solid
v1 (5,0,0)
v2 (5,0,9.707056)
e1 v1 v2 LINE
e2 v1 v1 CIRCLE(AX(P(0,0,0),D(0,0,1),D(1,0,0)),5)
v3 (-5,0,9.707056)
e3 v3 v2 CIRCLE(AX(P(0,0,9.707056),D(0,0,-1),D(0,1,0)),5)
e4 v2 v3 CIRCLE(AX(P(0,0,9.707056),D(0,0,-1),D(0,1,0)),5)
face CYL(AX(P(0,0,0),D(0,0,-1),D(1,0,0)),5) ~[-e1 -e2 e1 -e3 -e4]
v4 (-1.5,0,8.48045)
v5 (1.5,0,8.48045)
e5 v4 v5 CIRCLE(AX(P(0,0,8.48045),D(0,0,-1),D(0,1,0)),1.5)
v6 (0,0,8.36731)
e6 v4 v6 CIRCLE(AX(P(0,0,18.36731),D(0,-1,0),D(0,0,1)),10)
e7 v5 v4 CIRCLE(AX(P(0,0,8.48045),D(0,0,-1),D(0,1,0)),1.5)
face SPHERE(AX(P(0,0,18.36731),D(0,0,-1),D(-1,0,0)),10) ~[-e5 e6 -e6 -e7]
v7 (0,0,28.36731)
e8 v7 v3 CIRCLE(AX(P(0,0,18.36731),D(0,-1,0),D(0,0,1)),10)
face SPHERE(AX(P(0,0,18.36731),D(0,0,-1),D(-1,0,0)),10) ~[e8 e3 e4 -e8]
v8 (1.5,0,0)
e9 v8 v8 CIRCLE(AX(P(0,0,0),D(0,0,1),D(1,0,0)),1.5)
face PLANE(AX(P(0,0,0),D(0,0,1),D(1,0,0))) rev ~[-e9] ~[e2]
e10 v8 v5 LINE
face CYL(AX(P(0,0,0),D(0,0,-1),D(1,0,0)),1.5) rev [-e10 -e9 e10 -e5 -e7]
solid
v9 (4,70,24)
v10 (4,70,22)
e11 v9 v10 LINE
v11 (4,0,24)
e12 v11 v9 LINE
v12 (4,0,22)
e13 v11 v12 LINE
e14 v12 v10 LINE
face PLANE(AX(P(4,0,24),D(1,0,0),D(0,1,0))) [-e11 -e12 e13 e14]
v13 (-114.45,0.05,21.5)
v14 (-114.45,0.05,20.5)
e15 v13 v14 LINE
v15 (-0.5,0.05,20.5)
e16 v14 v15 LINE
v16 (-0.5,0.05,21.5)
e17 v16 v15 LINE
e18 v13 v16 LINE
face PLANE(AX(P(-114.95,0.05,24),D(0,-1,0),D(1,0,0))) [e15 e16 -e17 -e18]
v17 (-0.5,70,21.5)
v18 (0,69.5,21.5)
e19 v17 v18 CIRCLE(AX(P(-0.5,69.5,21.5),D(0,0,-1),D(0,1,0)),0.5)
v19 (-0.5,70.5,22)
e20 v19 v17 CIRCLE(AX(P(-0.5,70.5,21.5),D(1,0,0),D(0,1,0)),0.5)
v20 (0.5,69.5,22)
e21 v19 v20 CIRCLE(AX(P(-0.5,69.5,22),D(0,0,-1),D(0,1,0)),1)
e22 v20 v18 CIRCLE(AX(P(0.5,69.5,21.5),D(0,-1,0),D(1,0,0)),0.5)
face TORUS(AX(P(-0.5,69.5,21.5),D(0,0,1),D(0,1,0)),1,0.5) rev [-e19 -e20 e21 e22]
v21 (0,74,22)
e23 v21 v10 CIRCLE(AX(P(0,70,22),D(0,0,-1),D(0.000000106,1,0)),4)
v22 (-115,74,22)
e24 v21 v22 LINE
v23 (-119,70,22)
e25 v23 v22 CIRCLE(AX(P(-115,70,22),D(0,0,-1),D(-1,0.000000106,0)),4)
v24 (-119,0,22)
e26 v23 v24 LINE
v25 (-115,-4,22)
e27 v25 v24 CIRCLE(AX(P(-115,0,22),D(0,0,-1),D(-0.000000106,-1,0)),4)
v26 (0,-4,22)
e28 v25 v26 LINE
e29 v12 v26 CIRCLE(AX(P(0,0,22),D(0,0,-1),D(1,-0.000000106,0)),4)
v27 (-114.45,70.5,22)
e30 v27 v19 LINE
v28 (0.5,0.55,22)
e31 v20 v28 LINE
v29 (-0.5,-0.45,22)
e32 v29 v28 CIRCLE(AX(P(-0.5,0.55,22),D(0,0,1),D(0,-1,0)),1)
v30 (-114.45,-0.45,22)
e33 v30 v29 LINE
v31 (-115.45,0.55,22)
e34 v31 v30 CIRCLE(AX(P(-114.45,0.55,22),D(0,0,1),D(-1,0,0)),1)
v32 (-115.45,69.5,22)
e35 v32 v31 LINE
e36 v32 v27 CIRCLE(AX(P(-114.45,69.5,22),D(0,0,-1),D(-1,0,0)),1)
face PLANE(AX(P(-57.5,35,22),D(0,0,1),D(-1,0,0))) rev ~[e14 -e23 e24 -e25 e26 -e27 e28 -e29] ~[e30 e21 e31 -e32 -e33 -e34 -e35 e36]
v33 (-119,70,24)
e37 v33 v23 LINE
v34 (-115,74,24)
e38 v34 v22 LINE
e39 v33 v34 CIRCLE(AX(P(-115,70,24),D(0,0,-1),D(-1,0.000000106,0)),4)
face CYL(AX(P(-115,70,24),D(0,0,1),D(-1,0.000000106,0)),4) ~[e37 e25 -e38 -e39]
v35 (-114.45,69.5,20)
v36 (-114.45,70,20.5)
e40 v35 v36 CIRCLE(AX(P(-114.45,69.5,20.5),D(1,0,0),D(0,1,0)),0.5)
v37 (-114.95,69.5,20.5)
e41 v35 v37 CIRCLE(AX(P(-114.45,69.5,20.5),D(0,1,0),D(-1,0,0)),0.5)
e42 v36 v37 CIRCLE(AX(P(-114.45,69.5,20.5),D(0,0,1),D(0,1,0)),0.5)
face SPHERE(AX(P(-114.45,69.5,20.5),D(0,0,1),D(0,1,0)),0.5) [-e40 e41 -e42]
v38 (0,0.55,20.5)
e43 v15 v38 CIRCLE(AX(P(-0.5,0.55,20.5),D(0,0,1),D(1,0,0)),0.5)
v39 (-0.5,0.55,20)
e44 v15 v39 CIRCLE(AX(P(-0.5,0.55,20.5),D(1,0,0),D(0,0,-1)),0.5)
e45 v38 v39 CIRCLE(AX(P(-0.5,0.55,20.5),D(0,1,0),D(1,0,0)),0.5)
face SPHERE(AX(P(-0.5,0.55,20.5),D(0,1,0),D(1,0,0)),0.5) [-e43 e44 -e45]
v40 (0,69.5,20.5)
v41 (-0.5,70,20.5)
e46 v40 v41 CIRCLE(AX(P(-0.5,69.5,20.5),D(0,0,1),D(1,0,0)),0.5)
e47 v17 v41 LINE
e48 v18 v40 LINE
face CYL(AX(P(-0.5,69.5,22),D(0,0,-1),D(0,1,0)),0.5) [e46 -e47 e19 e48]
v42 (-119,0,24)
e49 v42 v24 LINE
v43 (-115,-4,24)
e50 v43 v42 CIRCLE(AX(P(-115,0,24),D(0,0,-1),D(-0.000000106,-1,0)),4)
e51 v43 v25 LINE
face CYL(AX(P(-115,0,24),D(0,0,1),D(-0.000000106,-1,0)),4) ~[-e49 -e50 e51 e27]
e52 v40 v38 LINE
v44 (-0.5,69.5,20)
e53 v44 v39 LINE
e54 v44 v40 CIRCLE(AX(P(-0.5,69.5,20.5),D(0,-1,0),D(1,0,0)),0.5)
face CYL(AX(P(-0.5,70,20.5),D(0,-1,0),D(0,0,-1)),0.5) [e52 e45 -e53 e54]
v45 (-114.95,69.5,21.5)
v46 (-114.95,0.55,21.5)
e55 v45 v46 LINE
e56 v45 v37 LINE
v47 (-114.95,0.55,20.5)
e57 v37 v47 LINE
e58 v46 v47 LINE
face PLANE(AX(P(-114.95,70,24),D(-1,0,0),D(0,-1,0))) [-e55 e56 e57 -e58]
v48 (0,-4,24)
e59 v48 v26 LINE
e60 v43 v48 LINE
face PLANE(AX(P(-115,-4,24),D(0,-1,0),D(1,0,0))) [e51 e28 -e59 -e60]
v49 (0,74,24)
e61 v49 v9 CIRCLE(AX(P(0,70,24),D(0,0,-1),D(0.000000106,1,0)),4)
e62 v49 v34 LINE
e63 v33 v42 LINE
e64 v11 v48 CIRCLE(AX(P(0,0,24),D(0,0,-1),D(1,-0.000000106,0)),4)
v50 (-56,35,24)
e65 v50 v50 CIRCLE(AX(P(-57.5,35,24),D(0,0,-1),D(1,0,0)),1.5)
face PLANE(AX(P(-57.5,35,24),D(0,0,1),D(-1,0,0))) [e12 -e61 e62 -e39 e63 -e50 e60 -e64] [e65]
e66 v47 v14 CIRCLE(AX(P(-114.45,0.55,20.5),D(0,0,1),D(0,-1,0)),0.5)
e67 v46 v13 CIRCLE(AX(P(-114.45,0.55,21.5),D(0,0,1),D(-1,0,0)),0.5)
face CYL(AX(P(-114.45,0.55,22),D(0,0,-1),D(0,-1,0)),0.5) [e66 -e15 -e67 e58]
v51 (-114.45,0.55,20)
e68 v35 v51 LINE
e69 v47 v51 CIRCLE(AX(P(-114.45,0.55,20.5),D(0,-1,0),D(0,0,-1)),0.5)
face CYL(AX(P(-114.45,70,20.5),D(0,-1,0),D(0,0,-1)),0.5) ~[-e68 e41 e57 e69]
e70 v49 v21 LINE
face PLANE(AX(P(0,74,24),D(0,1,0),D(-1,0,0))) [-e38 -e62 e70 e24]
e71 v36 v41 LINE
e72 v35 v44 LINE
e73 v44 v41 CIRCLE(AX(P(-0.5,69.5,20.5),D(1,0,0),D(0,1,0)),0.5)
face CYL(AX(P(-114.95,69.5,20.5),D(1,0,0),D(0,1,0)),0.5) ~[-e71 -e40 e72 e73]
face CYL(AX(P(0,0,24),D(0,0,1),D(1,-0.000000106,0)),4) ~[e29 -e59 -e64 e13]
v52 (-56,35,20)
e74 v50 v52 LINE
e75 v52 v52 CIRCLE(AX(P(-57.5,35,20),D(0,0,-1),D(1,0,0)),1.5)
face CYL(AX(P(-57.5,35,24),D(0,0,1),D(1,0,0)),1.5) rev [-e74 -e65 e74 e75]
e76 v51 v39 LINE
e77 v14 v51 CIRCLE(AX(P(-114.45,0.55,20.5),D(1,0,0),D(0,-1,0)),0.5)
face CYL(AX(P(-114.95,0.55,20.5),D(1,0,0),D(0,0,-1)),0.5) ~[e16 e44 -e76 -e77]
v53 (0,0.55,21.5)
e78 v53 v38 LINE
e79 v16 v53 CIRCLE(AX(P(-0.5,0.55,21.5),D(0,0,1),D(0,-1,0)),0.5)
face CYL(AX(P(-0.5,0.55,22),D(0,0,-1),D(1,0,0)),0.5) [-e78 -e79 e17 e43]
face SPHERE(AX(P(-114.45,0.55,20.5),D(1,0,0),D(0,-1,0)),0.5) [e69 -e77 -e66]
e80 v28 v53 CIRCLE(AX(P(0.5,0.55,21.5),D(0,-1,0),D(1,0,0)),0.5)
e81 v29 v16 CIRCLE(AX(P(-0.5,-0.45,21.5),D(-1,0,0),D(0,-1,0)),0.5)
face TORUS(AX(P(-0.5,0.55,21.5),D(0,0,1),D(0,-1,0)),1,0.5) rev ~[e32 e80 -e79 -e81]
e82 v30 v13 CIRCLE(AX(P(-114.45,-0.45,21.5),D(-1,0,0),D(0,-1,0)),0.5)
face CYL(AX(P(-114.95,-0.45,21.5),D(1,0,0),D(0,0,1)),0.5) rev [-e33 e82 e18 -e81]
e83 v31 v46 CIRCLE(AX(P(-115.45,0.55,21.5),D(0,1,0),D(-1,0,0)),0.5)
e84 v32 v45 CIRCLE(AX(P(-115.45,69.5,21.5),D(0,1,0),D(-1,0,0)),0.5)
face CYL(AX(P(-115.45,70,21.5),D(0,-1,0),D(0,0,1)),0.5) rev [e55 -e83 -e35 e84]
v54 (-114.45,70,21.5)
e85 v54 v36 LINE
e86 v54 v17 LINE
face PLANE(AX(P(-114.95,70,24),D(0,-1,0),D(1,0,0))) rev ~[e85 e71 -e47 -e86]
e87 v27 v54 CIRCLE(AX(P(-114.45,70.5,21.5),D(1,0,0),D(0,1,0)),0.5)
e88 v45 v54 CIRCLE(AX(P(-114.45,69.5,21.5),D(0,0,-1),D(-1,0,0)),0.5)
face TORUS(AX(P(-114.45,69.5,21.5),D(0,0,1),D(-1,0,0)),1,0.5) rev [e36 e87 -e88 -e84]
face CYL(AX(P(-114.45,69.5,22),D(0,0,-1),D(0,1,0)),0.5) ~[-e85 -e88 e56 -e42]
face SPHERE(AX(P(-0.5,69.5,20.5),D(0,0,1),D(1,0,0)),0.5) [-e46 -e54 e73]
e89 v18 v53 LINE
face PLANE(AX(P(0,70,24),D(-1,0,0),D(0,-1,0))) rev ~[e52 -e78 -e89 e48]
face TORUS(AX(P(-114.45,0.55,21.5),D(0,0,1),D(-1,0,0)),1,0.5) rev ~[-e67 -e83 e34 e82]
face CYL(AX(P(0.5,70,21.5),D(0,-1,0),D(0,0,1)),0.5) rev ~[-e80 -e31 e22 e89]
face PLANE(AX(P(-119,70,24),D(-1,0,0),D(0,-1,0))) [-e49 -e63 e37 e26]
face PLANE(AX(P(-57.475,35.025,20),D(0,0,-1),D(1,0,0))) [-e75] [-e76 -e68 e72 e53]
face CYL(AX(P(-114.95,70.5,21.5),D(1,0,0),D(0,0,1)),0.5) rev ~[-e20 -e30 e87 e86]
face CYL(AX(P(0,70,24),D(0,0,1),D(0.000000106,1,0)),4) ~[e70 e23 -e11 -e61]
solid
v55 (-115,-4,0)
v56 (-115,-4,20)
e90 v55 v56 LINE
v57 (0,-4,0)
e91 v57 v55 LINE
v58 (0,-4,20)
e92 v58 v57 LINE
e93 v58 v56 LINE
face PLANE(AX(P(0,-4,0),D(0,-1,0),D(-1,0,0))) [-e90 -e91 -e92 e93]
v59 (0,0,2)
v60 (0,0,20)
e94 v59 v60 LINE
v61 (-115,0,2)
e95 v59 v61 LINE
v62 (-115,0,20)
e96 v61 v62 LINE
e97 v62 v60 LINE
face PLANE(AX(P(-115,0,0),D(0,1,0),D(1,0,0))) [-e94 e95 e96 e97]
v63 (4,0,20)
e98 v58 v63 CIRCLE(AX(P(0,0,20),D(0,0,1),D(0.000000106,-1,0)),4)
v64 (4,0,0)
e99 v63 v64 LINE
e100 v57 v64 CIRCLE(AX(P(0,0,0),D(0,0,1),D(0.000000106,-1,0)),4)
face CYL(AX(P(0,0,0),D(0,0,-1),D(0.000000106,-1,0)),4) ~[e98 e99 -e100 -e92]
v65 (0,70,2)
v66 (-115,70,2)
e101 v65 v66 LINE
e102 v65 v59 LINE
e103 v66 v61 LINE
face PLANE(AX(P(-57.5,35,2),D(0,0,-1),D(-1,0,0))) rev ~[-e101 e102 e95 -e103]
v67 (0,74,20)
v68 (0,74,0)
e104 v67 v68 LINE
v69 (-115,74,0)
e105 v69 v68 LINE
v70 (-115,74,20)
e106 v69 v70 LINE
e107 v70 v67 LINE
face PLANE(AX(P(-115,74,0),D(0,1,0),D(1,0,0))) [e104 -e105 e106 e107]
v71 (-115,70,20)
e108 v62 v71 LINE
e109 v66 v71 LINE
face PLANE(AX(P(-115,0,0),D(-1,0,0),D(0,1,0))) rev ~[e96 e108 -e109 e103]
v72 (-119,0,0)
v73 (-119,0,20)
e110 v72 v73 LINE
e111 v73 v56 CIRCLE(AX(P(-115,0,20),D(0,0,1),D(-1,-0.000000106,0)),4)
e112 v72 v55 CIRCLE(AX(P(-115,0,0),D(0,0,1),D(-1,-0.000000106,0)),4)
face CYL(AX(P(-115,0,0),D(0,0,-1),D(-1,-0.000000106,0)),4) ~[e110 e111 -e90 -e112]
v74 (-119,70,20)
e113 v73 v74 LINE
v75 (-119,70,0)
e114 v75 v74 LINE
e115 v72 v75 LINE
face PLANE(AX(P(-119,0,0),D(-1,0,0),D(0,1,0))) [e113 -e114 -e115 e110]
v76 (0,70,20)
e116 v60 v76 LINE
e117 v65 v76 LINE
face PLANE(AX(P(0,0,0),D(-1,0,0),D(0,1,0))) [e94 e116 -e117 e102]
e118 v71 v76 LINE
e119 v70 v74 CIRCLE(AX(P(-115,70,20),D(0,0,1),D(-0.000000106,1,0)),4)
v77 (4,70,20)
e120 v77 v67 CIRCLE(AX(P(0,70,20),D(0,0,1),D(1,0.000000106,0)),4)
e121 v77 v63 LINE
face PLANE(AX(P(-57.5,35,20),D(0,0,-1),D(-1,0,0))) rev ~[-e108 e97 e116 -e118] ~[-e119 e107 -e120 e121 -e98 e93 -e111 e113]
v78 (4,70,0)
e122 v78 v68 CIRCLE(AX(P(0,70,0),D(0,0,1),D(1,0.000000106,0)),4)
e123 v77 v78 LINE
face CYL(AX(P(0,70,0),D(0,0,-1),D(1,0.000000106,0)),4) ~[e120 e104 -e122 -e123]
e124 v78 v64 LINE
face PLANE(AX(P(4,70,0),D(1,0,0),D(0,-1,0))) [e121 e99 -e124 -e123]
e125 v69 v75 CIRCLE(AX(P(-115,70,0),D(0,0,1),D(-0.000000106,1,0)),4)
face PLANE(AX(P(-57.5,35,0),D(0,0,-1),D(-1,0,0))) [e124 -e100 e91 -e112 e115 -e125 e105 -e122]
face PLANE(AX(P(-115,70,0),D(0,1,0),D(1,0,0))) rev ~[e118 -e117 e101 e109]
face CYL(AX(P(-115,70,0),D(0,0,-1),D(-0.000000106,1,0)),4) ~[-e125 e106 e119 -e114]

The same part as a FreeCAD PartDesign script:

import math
import FreeCAD as App
import Part
import Sketcher
from FreeCAD import Vector
Q = App.Units.Quantity


def edges_at(feature, points):
    """Names of the edges that pass closest to the given points."""
    edges = feature.Shape.Edges
    near = lambda p: min(range(len(edges)), key=lambda i: edges[i].distToShape(Part.Vertex(*p))[0])
    return sorted({f"Edge{near(p) + 1}" for p in points})

doc = App.newDocument("Part")
body = doc.addObject("PartDesign::Body", "Body")

sketch1 = body.newObject("Sketcher::SketchObject", "Sketch")
sketch1.AttachmentSupport = (doc.getObject("XY_Plane"), [""])
sketch1.MapMode = "FlatFace"
sketch1.addGeometry([
    Part.LineSegment(Vector(0, 74, 0), Vector(-115, 74, 0)),
    Part.ArcOfCircle(Part.Circle(Vector(-115, 70, 0), Vector(0, 0, 1), 4), math.radians(90), math.radians(180)),
    Part.LineSegment(Vector(-119, 70, 0), Vector(-119, 0, 0)),
    Part.ArcOfCircle(Part.Circle(Vector(-115, 0, 0), Vector(0, 0, 1), 4), math.radians(-180), math.radians(-90)),
    Part.LineSegment(Vector(-115, -4, 0), Vector(0, -4, 0)),
    Part.ArcOfCircle(Part.Circle(Vector(0, 0, 0), Vector(0, 0, 1), 4), math.radians(-90), math.radians(0)),
    Part.LineSegment(Vector(4, 0, 0), Vector(4, 70, 0)),
    Part.ArcOfCircle(Part.Circle(Vector(0, 70, 0), Vector(0, 0, 1), 4), math.radians(0), math.radians(90)),
    Part.LineSegment(Vector(-115, 0, 0), Vector(-115, 70, 0)),
    Part.LineSegment(Vector(-115, 70, 0), Vector(0, 70, 0)),
    Part.LineSegment(Vector(0, 70, 0), Vector(0, 0, 0)),
    Part.LineSegment(Vector(0, 0, 0), Vector(-115, 0, 0)),
], False)
sketch1.addConstraint([
    Sketcher.Constraint("Tangent", 0, 2, 1, 1),
    Sketcher.Constraint("Tangent", 1, 2, 2, 1),
    Sketcher.Constraint("Tangent", 2, 2, 3, 1),
    Sketcher.Constraint("Tangent", 3, 2, 4, 1),
    Sketcher.Constraint("Tangent", 4, 2, 5, 1),
    Sketcher.Constraint("Tangent", 5, 2, 6, 1),
    Sketcher.Constraint("Tangent", 6, 2, 7, 1),
    Sketcher.Constraint("Tangent", 7, 2, 0, 1),
    Sketcher.Constraint("Coincident", 8, 2, 9, 1),
    Sketcher.Constraint("Coincident", 9, 2, 10, 1),
    Sketcher.Constraint("Coincident", 10, 2, 11, 1),
    Sketcher.Constraint("Coincident", 11, 2, 8, 1),
    Sketcher.Constraint("Horizontal", 0),
    Sketcher.Constraint("Vertical", 2),
    Sketcher.Constraint("Horizontal", 4),
    Sketcher.Constraint("Vertical", 6),
    Sketcher.Constraint("Vertical", 8),
    Sketcher.Constraint("Horizontal", 9),
    Sketcher.Constraint("Vertical", 10),
    Sketcher.Constraint("Horizontal", 11),
    Sketcher.Constraint("Coincident", 5, 3, -1, 1),
    Sketcher.Constraint("Coincident", 10, 2, -1, 1),
    Sketcher.Constraint("Coincident", 8, 2, 1, 3),
    Sketcher.Constraint("Coincident", 9, 2, 7, 3),
    Sketcher.Constraint("Equal", 1, 3),
    Sketcher.Constraint("Radius", 1, Q("4 mm")),
    Sketcher.Constraint("DistanceX", 0, 2, 0, 1, Q("115 mm")),
    Sketcher.Constraint("DistanceY", 2, 2, 2, 1, Q("70 mm")),
])
pad1 = body.newObject("PartDesign::Pad", "Pad")
pad1.Profile = sketch1
pad1.Length = 20

sketch2 = body.newObject("Sketcher::SketchObject", "Sketch001")
sketch2.AttachmentSupport = (doc.getObject("XY_Plane"), [""])
sketch2.MapMode = "FlatFace"
sketch2.addGeometry([
    Part.LineSegment(Vector(0, 74, 0), Vector(-115, 74, 0)),
    Part.ArcOfCircle(Part.Circle(Vector(-115, 70, 0), Vector(0, 0, 1), 4), math.radians(90), math.radians(180)),
    Part.LineSegment(Vector(-119, 70, 0), Vector(-119, 0, 0)),
    Part.ArcOfCircle(Part.Circle(Vector(-115, 0, 0), Vector(0, 0, 1), 4), math.radians(-180), math.radians(-90)),
    Part.LineSegment(Vector(-115, -4, 0), Vector(0, -4, 0)),
    Part.ArcOfCircle(Part.Circle(Vector(0, 0, 0), Vector(0, 0, 1), 4), math.radians(-90), math.radians(0)),
    Part.LineSegment(Vector(4, 0, 0), Vector(4, 70, 0)),
    Part.ArcOfCircle(Part.Circle(Vector(0, 70, 0), Vector(0, 0, 1), 4), math.radians(0), math.radians(90)),
], False)
sketch2.addConstraint([
    Sketcher.Constraint("Tangent", 0, 2, 1, 1),
    Sketcher.Constraint("Tangent", 1, 2, 2, 1),
    Sketcher.Constraint("Tangent", 2, 2, 3, 1),
    Sketcher.Constraint("Tangent", 3, 2, 4, 1),
    Sketcher.Constraint("Tangent", 4, 2, 5, 1),
    Sketcher.Constraint("Tangent", 5, 2, 6, 1),
    Sketcher.Constraint("Tangent", 6, 2, 7, 1),
    Sketcher.Constraint("Tangent", 7, 2, 0, 1),
    Sketcher.Constraint("Horizontal", 0),
    Sketcher.Constraint("Vertical", 2),
    Sketcher.Constraint("Horizontal", 4),
    Sketcher.Constraint("Vertical", 6),
    Sketcher.Constraint("Coincident", 5, 3, -1, 1),
    Sketcher.Constraint("Equal", 1, 3),
    Sketcher.Constraint("Equal", 3, 5),
    Sketcher.Constraint("Equal", 5, 7),
    Sketcher.Constraint("Radius", 1, Q("4 mm")),
    Sketcher.Constraint("DistanceX", 0, 2, 0, 1, Q("115 mm")),
    Sketcher.Constraint("DistanceY", 2, 2, 2, 1, Q("70 mm")),
])
pad2 = body.newObject("PartDesign::Pad", "Pad001")
pad2.Profile = sketch2
pad2.Length = 2
body2 = doc.addObject("PartDesign::Body", "Body001")

sketch3 = body2.newObject("Sketcher::SketchObject", "Sketch002")
sketch3.AttachmentSupport = (doc.getObject("XY_Plane001"), [""])
sketch3.MapMode = "FlatFace"
sketch3.addGeometry([
    Part.LineSegment(Vector(0, 74, 0), Vector(-115, 74, 0)),
    Part.ArcOfCircle(Part.Circle(Vector(-115, 70, 0), Vector(0, 0, 1), 4), math.radians(90), math.radians(180)),
    Part.LineSegment(Vector(-119, 70, 0), Vector(-119, 0, 0)),
    Part.ArcOfCircle(Part.Circle(Vector(-115, 0, 0), Vector(0, 0, 1), 4), math.radians(-180), math.radians(-90)),
    Part.LineSegment(Vector(-115, -4, 0), Vector(0, -4, 0)),
    Part.ArcOfCircle(Part.Circle(Vector(0, 0, 0), Vector(0, 0, 1), 4), math.radians(-90), math.radians(0)),
    Part.LineSegment(Vector(4, 0, 0), Vector(4, 70, 0)),
    Part.ArcOfCircle(Part.Circle(Vector(0, 70, 0), Vector(0, 0, 1), 4), math.radians(0), math.radians(90)),
    Part.Circle(Vector(-57.5, 35, 0), Vector(0, 0, 1), 1.5),
], False)
sketch3.addConstraint([
    Sketcher.Constraint("Tangent", 0, 2, 1, 1),
    Sketcher.Constraint("Tangent", 1, 2, 2, 1),
    Sketcher.Constraint("Tangent", 2, 2, 3, 1),
    Sketcher.Constraint("Tangent", 3, 2, 4, 1),
    Sketcher.Constraint("Tangent", 4, 2, 5, 1),
    Sketcher.Constraint("Tangent", 5, 2, 6, 1),
    Sketcher.Constraint("Tangent", 6, 2, 7, 1),
    Sketcher.Constraint("Tangent", 7, 2, 0, 1),
    Sketcher.Constraint("Horizontal", 0),
    Sketcher.Constraint("Vertical", 2),
    Sketcher.Constraint("Horizontal", 4),
    Sketcher.Constraint("Vertical", 6),
    Sketcher.Constraint("Coincident", 5, 3, -1, 1),
    Sketcher.Constraint("Equal", 1, 3),
    Sketcher.Constraint("Equal", 3, 5),
    Sketcher.Constraint("Equal", 5, 7),
    Sketcher.Constraint("Diameter", 8, Q("3 mm")),
    Sketcher.Constraint("Radius", 1, Q("4 mm")),
    Sketcher.Constraint("DistanceX", 0, 2, 0, 1, Q("115 mm")),
    Sketcher.Constraint("DistanceY", 2, 2, 2, 1, Q("70 mm")),
    Sketcher.Constraint("DistanceY", -1, 1, 8, 3, Q("35 mm")),
    Sketcher.Constraint("DistanceX", 8, 3, -1, 1, Q("57.5 mm")),
])
pad3 = body2.newObject("PartDesign::Pad", "Pad002")
pad3.Profile = sketch3
pad3.Length = 2

sketch4 = body2.newObject("Sketcher::SketchObject", "Sketch003")
sketch4.AttachmentSupport = (doc.getObject("XY_Plane001"), [""])
sketch4.MapMode = "FlatFace"
sketch4.addGeometry([
    Part.LineSegment(Vector(-115, 70, 0), Vector(-115, 0, 0)),
    Part.LineSegment(Vector(-115, 0, 0), Vector(0, 0, 0)),
    Part.LineSegment(Vector(0, 0, 0), Vector(0, 70, 0)),
    Part.LineSegment(Vector(0, 70, 0), Vector(-115, 70, 0)),
    Part.Circle(Vector(-57.5, 35, 0), Vector(0, 0, 1), 1.5),
], False)
sketch4.addConstraint([
    Sketcher.Constraint("Coincident", 0, 2, 1, 1),
    Sketcher.Constraint("Coincident", 1, 2, 2, 1),
    Sketcher.Constraint("Coincident", 2, 2, 3, 1),
    Sketcher.Constraint("Coincident", 3, 2, 0, 1),
    Sketcher.Constraint("Vertical", 0),
    Sketcher.Constraint("Horizontal", 1),
    Sketcher.Constraint("Vertical", 2),
    Sketcher.Constraint("Horizontal", 3),
    Sketcher.Constraint("Coincident", 1, 2, -1, 1),
    Sketcher.Constraint("Diameter", 4, Q("3 mm")),
    Sketcher.Constraint("DistanceY", -1, 1, 4, 3, Q("35 mm")),
    Sketcher.Constraint("DistanceX", 1, 1, 1, 2, Q("114.95 mm")),
    Sketcher.Constraint("DistanceY", 0, 2, 0, 1, Q("69.95 mm")),
    Sketcher.Constraint("DistanceX", 4, 3, -1, 1, Q("57.5 mm")),
])
pad4 = body2.newObject("PartDesign::Pad", "Pad003")
pad4.Profile = sketch4
pad4.Length = 4
doc.recompute()

fillet = body2.newObject("PartDesign::Fillet", "Fillet")
fillet.Base = (pad4, edges_at(pad4, [
    (0, 34.975, 2),
    (0, 0, 3),
    (0, 34.975, 4),
    (0, 69.95, 3),
    (-57.475, 69.95, 2),
    (-57.475, 69.95, 4),
    (-114.95, 69.95, 3),
    (-57.475, 0, 2),
    (-114.95, 0, 3),
    (-57.475, 0, 4),
    (-114.95, 34.975, 2),
    (-114.95, 34.975, 4),
]))
fillet.Radius = 0.5
body3 = doc.addObject("PartDesign::Body", "Body002")
doc.recompute()

body2.Placement = App.Placement(Vector(0, 70, 24), App.Rotation(Vector(1, 0, 0), 180))
boolean = body3.newObject("PartDesign::Boolean", "Boolean")
boolean.Type = "Fuse"
boolean.addObjects([body2])
body4 = doc.addObject("PartDesign::Body", "Body003")

sketch5 = body4.newObject("Sketcher::SketchObject", "Sketch004")
sketch5.AttachmentSupport = (doc.getObject("XY_Plane003"), [""])
sketch5.MapMode = "FlatFace"
sketch5.addGeometry([
    Part.Circle(Vector(0, 0, 0), Vector(0, 0, 1), 5),
    Part.Circle(Vector(0, 0, 0), Vector(0, 0, 1), 1.5),
], False)
sketch5.addConstraint([
    Sketcher.Constraint("Coincident", 0, 3, -1, 1),
    Sketcher.Constraint("Coincident", 1, 3, -1, 1),
    Sketcher.Constraint("Diameter", 0, Q("10 mm")),
    Sketcher.Constraint("Diameter", 1, Q("3 mm")),
])
pad5 = body4.newObject("PartDesign::Pad", "Pad004")
pad5.Profile = sketch5
pad5.Length = 10

sketch6 = body4.newObject("Sketcher::SketchObject", "Sketch005")
sketch6.AttachmentSupport = (doc.getObject("XZ_Plane003"), [""])
sketch6.MapMode = "FlatFace"
sketch6.addGeometry([
    Part.LineSegment(Vector(0, 8, 0), Vector(0, 28, 0)),
    Part.ArcOfCircle(Part.Circle(Vector(0, 18, 0), Vector(0, 0, 1), 10), math.radians(90), math.radians(270)),
], False)
sketch6.addConstraint([
    Sketcher.Constraint("Coincident", 0, 1, 1, 2),
    Sketcher.Constraint("Coincident", 1, 1, 0, 2),
    Sketcher.Constraint("Vertical", 0),
    Sketcher.Constraint("PointOnObject", 1, 3, -2),
    Sketcher.Constraint("PointOnObject", 0, 1, -2),
    Sketcher.Constraint("Radius", 1, Q("10 mm")),
    Sketcher.Constraint("DistanceY", -1, 1, 1, 3, Q("18.36731 mm")),
])
revolution = body4.newObject("PartDesign::Revolution", "Revolution")
revolution.Profile = sketch6
revolution.ReferenceAxis = (sketch6, ["V_Axis"])
revolution.Angle = 360

doc.recompute()
